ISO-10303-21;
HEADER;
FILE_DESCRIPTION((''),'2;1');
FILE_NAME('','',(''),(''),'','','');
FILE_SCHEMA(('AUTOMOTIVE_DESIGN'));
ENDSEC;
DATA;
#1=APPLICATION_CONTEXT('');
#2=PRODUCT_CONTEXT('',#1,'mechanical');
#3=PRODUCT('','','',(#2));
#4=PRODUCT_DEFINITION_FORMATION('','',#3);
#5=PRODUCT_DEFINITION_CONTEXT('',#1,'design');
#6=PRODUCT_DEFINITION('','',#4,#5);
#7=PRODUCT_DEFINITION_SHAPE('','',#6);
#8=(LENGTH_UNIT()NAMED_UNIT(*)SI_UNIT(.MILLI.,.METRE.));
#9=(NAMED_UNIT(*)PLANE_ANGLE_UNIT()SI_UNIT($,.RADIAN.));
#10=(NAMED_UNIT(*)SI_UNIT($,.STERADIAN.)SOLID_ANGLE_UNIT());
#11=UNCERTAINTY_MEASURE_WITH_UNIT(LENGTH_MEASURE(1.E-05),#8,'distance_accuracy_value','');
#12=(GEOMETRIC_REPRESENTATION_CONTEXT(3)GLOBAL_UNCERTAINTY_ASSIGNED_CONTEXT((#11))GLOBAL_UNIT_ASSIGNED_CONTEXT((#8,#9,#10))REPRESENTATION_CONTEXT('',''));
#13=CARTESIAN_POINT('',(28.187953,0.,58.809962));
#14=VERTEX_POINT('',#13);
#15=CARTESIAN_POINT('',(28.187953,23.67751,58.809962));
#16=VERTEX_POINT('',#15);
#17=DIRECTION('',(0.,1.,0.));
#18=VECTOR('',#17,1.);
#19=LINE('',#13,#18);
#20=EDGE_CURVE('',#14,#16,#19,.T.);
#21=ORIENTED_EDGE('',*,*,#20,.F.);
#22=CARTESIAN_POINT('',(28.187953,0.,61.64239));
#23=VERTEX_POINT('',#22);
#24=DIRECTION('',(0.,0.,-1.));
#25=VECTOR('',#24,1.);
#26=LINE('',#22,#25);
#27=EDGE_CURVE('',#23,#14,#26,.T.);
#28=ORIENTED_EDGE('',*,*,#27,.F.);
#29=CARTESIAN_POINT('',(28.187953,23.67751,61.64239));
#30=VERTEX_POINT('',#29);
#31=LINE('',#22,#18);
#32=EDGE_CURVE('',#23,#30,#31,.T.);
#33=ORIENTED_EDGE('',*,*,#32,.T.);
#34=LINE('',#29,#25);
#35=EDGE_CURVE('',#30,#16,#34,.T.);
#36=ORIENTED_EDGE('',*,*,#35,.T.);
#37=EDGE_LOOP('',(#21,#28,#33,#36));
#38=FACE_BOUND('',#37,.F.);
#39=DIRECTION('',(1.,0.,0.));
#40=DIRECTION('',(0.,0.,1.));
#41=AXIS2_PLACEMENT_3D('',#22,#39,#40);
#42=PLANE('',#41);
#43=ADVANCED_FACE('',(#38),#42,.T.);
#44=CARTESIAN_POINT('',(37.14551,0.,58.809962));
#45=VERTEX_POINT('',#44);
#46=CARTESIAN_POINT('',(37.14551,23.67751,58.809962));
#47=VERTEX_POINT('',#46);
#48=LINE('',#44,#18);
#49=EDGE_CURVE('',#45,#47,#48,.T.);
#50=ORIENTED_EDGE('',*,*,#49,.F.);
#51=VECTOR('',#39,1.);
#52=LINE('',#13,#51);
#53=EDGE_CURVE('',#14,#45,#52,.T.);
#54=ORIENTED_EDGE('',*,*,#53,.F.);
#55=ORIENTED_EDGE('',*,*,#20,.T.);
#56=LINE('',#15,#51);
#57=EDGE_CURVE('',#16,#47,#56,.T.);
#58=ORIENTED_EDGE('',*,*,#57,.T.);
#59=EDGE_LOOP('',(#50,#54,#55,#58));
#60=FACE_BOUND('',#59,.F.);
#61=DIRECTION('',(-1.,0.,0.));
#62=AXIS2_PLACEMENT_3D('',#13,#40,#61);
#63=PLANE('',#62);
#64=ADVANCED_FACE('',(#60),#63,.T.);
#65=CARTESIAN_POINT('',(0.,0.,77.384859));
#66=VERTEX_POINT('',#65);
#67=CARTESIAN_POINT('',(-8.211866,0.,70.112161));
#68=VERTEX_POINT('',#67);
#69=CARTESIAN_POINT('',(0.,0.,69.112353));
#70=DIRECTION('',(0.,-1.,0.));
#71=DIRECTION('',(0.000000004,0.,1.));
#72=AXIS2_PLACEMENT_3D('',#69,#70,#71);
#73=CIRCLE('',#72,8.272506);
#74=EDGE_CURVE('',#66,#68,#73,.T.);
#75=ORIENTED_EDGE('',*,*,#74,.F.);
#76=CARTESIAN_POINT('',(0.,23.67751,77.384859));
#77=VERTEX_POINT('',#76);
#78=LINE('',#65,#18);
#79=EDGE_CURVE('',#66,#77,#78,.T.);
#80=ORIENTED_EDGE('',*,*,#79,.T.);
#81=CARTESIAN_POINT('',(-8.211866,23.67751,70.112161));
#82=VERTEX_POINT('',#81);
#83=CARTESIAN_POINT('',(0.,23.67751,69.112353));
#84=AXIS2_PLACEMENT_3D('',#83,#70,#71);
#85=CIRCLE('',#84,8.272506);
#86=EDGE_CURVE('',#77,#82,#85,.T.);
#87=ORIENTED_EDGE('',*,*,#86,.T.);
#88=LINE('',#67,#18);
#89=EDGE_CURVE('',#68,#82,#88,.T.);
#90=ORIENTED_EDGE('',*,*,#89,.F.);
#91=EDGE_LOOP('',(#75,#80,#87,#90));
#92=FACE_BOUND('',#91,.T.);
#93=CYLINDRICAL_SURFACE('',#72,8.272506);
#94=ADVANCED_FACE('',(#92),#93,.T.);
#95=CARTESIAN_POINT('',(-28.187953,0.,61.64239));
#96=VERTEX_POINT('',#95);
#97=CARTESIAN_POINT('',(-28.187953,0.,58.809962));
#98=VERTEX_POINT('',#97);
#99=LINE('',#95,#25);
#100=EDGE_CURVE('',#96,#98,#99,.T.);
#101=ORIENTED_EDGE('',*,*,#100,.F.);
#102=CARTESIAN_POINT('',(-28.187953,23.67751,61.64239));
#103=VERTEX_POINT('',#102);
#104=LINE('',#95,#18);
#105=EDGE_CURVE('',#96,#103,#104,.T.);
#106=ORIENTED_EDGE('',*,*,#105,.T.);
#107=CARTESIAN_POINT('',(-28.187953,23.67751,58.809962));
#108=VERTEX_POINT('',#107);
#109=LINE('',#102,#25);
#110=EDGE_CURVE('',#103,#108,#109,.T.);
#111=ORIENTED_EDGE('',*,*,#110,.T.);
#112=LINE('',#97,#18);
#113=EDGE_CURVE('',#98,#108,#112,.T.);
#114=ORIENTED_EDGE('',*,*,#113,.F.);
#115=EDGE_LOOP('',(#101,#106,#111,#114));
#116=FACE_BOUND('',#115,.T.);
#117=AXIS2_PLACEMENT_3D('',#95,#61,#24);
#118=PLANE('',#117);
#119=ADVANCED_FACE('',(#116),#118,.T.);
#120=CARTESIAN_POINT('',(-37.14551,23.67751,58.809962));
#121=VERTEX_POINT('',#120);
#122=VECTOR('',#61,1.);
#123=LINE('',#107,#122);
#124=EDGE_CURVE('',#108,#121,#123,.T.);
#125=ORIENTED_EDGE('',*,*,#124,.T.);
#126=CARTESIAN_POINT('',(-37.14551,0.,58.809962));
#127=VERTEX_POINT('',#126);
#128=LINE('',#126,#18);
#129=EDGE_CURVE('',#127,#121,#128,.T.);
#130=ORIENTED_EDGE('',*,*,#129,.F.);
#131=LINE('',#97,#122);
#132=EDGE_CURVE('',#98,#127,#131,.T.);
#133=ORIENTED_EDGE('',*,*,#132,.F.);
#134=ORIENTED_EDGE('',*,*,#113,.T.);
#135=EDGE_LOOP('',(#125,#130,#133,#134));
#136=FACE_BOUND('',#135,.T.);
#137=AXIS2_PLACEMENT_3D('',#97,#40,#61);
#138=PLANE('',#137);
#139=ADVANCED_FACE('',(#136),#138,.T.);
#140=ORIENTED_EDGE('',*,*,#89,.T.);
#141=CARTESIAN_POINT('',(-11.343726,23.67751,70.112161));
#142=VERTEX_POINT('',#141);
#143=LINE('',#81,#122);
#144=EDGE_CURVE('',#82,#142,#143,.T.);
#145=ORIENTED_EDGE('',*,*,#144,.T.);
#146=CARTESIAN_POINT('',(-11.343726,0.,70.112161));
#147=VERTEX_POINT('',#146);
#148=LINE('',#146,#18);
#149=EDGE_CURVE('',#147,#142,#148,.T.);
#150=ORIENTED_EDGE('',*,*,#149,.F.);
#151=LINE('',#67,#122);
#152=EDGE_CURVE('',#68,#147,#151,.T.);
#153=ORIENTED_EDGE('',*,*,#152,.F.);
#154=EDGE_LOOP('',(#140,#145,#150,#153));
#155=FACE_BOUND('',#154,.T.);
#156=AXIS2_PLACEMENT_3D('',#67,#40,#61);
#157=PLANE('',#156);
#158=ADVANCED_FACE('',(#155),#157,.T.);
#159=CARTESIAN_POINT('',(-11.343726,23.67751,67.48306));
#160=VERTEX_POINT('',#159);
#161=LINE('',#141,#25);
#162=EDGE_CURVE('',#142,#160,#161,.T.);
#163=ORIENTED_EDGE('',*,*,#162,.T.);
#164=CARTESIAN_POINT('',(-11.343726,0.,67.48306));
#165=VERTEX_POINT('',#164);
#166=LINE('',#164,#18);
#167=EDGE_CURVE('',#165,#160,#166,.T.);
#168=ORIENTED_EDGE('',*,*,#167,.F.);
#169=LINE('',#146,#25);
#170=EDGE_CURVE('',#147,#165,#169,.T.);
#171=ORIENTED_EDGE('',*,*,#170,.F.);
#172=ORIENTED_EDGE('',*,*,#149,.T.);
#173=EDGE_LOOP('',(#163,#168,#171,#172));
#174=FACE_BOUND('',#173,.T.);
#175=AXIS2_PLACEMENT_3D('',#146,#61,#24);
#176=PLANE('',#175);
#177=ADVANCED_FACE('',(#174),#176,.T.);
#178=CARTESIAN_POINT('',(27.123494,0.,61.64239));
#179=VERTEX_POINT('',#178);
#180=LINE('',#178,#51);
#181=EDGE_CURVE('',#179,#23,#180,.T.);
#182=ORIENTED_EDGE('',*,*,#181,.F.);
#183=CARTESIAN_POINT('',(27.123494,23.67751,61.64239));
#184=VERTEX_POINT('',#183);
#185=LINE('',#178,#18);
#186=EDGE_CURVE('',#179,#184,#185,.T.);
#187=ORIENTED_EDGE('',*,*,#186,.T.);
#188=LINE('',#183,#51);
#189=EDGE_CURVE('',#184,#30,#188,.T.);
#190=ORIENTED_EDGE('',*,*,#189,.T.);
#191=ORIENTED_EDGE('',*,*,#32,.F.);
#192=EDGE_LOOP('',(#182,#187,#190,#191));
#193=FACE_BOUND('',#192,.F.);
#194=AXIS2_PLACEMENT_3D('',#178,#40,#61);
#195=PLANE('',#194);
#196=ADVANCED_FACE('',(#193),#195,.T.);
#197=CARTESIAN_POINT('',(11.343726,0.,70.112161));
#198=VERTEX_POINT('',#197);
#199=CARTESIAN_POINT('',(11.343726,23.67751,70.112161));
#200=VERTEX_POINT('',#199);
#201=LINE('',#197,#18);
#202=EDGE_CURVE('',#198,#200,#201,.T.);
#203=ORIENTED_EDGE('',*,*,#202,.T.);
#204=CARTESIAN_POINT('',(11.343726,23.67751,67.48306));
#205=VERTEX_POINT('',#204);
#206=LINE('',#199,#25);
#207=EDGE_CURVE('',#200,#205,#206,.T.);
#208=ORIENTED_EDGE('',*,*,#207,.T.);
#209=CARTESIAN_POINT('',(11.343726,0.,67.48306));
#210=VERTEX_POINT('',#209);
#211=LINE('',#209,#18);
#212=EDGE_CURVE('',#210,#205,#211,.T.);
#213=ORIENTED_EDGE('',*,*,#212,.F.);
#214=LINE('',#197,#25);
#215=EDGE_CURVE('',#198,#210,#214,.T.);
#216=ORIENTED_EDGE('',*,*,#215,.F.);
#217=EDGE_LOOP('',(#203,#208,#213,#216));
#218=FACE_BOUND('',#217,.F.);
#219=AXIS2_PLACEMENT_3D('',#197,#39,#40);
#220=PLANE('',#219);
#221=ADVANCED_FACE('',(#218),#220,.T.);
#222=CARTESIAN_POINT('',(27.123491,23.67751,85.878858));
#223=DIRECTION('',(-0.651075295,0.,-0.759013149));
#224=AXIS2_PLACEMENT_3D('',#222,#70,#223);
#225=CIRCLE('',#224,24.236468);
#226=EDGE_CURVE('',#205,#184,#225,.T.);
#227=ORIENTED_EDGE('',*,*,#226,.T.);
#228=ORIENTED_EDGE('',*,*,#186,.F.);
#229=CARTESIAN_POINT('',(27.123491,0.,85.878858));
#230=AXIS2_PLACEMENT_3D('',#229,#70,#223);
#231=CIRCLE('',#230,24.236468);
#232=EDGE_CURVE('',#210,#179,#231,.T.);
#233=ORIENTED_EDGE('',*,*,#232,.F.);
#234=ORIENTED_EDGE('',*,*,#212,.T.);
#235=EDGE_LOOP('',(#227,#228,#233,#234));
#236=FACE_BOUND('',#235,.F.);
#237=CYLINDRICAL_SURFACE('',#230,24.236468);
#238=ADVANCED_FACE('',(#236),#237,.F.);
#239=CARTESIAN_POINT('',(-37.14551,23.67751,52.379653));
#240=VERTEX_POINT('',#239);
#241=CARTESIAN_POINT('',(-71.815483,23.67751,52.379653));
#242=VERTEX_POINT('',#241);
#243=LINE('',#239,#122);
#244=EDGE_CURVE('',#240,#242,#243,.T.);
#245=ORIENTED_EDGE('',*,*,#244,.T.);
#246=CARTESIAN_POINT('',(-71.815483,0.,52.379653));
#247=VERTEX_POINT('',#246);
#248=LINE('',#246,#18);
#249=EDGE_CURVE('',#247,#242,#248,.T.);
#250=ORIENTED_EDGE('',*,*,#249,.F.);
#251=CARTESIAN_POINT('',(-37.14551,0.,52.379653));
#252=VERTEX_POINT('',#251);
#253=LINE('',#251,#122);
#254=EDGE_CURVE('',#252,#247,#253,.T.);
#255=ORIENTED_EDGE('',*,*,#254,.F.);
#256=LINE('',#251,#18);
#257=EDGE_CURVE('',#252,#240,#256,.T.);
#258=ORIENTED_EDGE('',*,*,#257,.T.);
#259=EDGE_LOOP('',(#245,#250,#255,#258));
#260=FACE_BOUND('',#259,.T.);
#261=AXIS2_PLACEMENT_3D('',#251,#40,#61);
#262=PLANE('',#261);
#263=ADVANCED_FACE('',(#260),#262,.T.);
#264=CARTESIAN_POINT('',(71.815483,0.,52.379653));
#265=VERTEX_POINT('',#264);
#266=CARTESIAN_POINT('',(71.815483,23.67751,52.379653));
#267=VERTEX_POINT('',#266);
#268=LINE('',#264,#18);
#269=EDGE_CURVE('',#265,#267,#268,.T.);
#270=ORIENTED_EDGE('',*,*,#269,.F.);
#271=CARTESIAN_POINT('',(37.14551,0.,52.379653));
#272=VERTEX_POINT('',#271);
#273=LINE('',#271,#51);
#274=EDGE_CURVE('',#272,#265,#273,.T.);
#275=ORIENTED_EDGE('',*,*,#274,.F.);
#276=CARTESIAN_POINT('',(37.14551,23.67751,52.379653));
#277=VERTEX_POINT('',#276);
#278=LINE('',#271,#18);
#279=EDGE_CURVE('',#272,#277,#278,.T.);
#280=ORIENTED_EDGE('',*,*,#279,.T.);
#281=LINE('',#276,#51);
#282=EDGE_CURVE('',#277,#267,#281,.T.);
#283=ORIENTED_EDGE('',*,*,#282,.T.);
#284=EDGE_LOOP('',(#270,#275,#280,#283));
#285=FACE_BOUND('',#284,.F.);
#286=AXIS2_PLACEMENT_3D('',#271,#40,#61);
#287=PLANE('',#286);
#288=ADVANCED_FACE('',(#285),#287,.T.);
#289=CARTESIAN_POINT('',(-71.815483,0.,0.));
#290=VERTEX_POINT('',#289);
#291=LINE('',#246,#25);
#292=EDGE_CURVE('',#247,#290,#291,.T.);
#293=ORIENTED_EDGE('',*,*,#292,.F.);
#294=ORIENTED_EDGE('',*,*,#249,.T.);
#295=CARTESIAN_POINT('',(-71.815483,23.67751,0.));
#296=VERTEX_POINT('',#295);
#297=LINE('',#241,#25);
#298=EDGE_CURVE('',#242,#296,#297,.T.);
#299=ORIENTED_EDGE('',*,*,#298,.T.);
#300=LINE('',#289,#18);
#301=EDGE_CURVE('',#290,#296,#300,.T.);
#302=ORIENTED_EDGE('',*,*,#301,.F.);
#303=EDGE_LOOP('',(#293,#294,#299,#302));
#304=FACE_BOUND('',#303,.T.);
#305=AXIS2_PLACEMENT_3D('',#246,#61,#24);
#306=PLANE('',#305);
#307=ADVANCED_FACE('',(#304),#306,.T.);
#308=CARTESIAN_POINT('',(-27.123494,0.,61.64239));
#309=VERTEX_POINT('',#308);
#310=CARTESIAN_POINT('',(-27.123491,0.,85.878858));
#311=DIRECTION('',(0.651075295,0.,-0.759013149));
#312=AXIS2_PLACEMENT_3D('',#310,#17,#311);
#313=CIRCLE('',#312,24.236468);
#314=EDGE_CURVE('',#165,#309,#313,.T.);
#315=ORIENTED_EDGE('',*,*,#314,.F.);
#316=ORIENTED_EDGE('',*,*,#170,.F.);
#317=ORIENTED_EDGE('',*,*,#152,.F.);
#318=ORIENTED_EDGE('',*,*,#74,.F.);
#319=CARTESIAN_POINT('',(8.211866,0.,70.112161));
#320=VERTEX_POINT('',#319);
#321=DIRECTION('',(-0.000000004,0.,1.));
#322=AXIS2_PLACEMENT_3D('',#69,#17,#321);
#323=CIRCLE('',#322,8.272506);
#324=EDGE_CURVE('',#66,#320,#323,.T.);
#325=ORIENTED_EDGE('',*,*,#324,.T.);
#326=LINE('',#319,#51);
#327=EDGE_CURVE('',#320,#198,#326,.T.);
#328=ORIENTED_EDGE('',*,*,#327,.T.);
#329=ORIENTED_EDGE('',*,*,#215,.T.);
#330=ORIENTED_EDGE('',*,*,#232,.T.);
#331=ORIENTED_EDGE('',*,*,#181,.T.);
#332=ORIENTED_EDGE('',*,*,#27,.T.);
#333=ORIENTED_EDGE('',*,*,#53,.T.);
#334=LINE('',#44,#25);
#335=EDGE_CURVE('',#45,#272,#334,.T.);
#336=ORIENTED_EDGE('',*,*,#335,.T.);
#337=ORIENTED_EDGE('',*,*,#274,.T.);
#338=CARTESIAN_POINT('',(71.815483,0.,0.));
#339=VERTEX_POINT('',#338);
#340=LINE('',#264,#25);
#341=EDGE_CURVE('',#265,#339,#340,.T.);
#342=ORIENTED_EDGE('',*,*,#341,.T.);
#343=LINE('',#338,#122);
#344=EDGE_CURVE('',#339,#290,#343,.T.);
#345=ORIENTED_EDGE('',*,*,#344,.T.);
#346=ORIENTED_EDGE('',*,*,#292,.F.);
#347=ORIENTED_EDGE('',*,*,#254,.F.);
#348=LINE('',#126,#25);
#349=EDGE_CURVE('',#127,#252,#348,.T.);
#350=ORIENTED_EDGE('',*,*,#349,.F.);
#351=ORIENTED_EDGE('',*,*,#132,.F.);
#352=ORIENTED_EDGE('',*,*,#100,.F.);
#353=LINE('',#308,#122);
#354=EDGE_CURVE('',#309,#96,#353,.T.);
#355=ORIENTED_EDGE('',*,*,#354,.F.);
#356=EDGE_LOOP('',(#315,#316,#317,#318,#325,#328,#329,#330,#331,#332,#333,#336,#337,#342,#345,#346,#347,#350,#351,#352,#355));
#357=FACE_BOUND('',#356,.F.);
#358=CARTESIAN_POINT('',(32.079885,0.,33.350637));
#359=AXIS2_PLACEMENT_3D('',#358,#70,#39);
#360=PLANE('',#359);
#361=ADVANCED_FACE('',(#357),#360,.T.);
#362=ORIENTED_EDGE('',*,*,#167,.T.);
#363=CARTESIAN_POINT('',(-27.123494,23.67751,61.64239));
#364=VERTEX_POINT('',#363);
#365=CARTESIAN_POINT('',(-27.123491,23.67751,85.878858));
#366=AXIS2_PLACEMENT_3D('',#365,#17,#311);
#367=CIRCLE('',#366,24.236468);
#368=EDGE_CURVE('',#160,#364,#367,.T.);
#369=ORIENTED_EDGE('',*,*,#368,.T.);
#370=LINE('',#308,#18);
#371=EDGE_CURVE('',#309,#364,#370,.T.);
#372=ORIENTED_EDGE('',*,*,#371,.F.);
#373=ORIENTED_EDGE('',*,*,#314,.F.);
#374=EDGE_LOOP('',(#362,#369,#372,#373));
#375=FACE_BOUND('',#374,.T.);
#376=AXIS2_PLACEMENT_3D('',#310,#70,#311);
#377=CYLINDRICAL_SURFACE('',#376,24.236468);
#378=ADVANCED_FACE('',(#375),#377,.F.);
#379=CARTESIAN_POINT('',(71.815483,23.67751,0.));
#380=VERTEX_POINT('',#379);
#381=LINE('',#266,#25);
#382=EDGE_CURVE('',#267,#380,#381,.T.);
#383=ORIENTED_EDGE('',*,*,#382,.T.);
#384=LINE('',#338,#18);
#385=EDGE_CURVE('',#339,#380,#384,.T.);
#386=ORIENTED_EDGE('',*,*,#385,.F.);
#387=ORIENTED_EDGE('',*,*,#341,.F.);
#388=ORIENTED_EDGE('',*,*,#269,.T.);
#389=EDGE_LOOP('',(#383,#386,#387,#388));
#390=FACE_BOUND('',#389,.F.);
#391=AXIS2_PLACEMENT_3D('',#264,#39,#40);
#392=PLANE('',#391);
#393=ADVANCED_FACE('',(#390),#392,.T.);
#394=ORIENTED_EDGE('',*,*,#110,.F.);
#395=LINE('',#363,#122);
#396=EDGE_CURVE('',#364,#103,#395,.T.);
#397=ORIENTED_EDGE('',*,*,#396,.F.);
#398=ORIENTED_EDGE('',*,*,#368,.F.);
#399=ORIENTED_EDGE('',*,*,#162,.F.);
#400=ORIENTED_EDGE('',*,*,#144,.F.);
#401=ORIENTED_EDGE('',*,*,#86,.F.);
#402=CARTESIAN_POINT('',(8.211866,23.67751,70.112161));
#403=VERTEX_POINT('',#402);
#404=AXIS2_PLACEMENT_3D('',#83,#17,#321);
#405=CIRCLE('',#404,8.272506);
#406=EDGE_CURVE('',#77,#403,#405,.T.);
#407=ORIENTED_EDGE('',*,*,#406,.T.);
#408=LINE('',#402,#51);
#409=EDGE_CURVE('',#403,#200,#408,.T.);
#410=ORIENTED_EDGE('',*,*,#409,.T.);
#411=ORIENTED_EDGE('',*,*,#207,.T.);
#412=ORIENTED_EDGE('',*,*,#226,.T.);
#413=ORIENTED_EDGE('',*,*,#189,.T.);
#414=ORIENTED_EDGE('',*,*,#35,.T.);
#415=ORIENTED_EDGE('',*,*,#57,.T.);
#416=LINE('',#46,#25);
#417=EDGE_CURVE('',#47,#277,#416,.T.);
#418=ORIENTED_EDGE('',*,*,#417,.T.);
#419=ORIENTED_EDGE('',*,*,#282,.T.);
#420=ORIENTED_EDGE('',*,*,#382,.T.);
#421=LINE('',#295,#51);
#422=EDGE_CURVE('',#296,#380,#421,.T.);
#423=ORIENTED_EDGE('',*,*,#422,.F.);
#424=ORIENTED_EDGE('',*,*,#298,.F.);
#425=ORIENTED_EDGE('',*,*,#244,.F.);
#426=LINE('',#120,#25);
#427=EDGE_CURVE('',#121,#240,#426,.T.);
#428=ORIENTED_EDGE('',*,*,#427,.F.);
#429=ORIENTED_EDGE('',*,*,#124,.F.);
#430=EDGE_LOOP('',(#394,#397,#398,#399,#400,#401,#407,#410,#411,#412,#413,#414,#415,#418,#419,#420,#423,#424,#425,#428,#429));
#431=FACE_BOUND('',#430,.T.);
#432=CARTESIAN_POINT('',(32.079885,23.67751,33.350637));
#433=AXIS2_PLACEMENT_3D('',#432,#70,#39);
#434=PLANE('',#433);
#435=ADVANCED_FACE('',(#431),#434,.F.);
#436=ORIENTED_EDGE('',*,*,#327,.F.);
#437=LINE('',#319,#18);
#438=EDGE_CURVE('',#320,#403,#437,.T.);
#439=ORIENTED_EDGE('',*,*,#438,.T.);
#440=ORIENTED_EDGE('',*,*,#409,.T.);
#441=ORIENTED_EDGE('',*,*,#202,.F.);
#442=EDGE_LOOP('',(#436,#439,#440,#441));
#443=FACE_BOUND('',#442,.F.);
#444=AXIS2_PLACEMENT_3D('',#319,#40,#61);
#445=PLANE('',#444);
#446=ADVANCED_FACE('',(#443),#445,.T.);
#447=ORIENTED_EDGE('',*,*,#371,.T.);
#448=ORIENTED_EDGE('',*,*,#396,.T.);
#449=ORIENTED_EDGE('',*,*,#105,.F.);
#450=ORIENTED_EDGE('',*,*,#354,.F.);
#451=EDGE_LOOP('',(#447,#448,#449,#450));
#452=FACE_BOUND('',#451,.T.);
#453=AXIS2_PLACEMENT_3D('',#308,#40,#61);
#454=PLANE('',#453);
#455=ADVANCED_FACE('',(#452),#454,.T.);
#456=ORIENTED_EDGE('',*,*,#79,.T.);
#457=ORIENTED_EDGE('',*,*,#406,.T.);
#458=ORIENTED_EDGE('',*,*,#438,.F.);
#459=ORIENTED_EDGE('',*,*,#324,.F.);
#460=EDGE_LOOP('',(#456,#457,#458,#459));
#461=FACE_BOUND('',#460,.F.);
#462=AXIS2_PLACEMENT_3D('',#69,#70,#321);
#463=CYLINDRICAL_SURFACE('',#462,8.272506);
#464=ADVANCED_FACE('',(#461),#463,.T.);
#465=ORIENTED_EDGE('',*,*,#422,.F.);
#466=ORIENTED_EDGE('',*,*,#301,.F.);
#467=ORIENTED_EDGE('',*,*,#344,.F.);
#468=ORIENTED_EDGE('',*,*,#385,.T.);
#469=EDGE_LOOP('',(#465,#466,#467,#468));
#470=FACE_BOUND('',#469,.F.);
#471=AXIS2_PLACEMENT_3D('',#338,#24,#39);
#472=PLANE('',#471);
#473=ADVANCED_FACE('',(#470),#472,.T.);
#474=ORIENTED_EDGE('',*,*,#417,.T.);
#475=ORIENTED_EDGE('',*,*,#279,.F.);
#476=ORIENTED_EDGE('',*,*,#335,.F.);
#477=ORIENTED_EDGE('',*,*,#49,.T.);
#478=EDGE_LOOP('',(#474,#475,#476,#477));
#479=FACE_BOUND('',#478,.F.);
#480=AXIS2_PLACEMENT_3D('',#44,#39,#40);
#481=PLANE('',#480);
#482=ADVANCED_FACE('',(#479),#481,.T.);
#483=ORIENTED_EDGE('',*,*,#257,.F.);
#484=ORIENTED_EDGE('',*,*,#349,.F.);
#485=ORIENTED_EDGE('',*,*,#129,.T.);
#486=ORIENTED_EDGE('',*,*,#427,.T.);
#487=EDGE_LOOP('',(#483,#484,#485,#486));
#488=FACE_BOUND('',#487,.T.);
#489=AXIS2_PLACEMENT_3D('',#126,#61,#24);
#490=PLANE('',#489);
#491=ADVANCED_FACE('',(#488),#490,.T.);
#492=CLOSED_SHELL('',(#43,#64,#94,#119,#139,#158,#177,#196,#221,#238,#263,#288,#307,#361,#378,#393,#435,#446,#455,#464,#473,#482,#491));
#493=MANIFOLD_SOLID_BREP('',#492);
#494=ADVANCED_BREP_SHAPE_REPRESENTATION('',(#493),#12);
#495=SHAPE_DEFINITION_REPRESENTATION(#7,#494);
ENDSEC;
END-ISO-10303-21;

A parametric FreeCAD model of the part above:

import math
import FreeCAD as App
import Part
import Sketcher
from FreeCAD import Vector

doc = App.newDocument("Part")
body = doc.addObject("PartDesign::Body", "Body")

# Sketch on XZ plane
sketch1 = body.newObject("Sketcher::SketchObject", "Sketch")
sketch1.AttachmentSupport = (doc.getObject("XZ_Plane"), [""])
sketch1.MapMode = "FlatFace"
sketch1.addGeometry([
    Part.LineSegment(Vector(-71.8, 52.4, 0), Vector(-71.8, 0, 0)),  # 0
    Part.LineSegment(Vector(-71.8, 0, 0), Vector(0, 0, 0)),  # 1
    Part.LineSegment(Vector(0, 0, 0), Vector(0, 77.4, 0)),  # 2
    Part.ArcOfCircle(Part.Circle(Vector(0, 69.1, 0), Vector(0, 0, 1), 8.3), math.radians(90), math.radians(173)),  # 3
    Part.LineSegment(Vector(-8.2, 70.1, 0), Vector(-11.3, 70.1, 0)),  # 4
    Part.LineSegment(Vector(-11.3, 70.1, 0), Vector(-11.3, 67.5, 0)),  # 5
    Part.ArcOfCircle(Part.Circle(Vector(-27.1, 85.9, 0), Vector(0, 0, 1), 24.2), math.radians(-90), math.radians(-49)),  # 6
    Part.LineSegment(Vector(-27.1, 61.6, 0), Vector(-28.2, 61.6, 0)),  # 7
    Part.LineSegment(Vector(-28.2, 61.6, 0), Vector(-28.2, 58.8, 0)),  # 8
    Part.LineSegment(Vector(-28.2, 58.8, 0), Vector(-37.1, 58.8, 0)),  # 9
    Part.LineSegment(Vector(-37.1, 58.8, 0), Vector(-37.1, 52.4, 0)),  # 10
    Part.LineSegment(Vector(-37.1, 52.4, 0), Vector(-71.8, 52.4, 0)),  # 11
], False)
sketch1.addConstraint([
    Sketcher.Constraint("Coincident", 0, 2, 1, 1),
    Sketcher.Constraint("Coincident", 1, 2, 2, 1),
    Sketcher.Constraint("Coincident", 2, 2, 3, 1),
    Sketcher.Constraint("Coincident", 3, 2, 4, 1),
    Sketcher.Constraint("Coincident", 4, 2, 5, 1),
    Sketcher.Constraint("Coincident", 5, 2, 6, 2),
    Sketcher.Constraint("Tangent", 6, 1, 7, 1),
    Sketcher.Constraint("Coincident", 7, 2, 8, 1),
    Sketcher.Constraint("Coincident", 8, 2, 9, 1),
    Sketcher.Constraint("Coincident", 9, 2, 10, 1),
    Sketcher.Constraint("Coincident", 10, 2, 11, 1),
    Sketcher.Constraint("Coincident", 11, 2, 0, 1),
    Sketcher.Constraint("Vertical", 0),
    Sketcher.Constraint("Horizontal", 1),
    Sketcher.Constraint("Vertical", 2),
    Sketcher.Constraint("Horizontal", 4),
    Sketcher.Constraint("Vertical", 5),
    Sketcher.Constraint("Horizontal", 7),
    Sketcher.Constraint("Vertical", 8),
    Sketcher.Constraint("Horizontal", 9),
    Sketcher.Constraint("Vertical", 10),
    Sketcher.Constraint("Horizontal", 11),
    Sketcher.Constraint("Coincident", 1, 2, -1, 1),
    Sketcher.Constraint("PointOnObject", 3, 3, -2),
    Sketcher.Constraint("DistanceY", 5, 2, 5, 1, 2.629101),
    Sketcher.Constraint("Radius", 3, 8.272506),
    Sketcher.Constraint("Radius", 6, 24.236468),
    Sketcher.Constraint("DistanceY", 2, 2, 6, 3, 8.493999),
    Sketcher.Constraint("DistanceX", 4, 2, 4, 1, 3.13186),
    Sketcher.Constraint("DistanceX", 7, 2, 7, 1, 1.064459),
    Sketcher.Constraint("DistanceY", 2, 1, 2, 2, 77.384859),
    Sketcher.Constraint("DistanceY", 8, 2, 8, 1, 2.832428),
    Sketcher.Constraint("DistanceY", 10, 2, 10, 1, 6.430309),
    Sketcher.Constraint("DistanceY", 3, 2, 2, 2, 7.272698),
    Sketcher.Constraint("DistanceX", 1, 1, 1, 2, 71.815483),
    Sketcher.Constraint("DistanceX", 9, 2, 9, 1, 8.957557),
])
pad1 = body.newObject("PartDesign::Pad", "Pad")
pad1.Profile = sketch1
pad1.Length = 23.67751
pad1.Reversed = True
body2 = doc.addObject("PartDesign::Body", "Body001")
doc.recompute()

body2.BaseFeature = body
doc.recompute()

mirroring = doc.addObject("Part::Mirroring", "Mirroring")
mirroring.Source = body
mirroring.Base = Vector(0, 0, 0)
mirroring.Normal = Vector(1, 0, 0)
body3 = doc.addObject("PartDesign::Body", "Body002")
body3.BaseFeature = mirroring
boolean = body2.newObject("PartDesign::Boolean", "Boolean")
boolean.Type = "Fuse"
boolean.addObjects([body3])
doc.recompute()
mirroring.Visibility = False

doc.recompute()
